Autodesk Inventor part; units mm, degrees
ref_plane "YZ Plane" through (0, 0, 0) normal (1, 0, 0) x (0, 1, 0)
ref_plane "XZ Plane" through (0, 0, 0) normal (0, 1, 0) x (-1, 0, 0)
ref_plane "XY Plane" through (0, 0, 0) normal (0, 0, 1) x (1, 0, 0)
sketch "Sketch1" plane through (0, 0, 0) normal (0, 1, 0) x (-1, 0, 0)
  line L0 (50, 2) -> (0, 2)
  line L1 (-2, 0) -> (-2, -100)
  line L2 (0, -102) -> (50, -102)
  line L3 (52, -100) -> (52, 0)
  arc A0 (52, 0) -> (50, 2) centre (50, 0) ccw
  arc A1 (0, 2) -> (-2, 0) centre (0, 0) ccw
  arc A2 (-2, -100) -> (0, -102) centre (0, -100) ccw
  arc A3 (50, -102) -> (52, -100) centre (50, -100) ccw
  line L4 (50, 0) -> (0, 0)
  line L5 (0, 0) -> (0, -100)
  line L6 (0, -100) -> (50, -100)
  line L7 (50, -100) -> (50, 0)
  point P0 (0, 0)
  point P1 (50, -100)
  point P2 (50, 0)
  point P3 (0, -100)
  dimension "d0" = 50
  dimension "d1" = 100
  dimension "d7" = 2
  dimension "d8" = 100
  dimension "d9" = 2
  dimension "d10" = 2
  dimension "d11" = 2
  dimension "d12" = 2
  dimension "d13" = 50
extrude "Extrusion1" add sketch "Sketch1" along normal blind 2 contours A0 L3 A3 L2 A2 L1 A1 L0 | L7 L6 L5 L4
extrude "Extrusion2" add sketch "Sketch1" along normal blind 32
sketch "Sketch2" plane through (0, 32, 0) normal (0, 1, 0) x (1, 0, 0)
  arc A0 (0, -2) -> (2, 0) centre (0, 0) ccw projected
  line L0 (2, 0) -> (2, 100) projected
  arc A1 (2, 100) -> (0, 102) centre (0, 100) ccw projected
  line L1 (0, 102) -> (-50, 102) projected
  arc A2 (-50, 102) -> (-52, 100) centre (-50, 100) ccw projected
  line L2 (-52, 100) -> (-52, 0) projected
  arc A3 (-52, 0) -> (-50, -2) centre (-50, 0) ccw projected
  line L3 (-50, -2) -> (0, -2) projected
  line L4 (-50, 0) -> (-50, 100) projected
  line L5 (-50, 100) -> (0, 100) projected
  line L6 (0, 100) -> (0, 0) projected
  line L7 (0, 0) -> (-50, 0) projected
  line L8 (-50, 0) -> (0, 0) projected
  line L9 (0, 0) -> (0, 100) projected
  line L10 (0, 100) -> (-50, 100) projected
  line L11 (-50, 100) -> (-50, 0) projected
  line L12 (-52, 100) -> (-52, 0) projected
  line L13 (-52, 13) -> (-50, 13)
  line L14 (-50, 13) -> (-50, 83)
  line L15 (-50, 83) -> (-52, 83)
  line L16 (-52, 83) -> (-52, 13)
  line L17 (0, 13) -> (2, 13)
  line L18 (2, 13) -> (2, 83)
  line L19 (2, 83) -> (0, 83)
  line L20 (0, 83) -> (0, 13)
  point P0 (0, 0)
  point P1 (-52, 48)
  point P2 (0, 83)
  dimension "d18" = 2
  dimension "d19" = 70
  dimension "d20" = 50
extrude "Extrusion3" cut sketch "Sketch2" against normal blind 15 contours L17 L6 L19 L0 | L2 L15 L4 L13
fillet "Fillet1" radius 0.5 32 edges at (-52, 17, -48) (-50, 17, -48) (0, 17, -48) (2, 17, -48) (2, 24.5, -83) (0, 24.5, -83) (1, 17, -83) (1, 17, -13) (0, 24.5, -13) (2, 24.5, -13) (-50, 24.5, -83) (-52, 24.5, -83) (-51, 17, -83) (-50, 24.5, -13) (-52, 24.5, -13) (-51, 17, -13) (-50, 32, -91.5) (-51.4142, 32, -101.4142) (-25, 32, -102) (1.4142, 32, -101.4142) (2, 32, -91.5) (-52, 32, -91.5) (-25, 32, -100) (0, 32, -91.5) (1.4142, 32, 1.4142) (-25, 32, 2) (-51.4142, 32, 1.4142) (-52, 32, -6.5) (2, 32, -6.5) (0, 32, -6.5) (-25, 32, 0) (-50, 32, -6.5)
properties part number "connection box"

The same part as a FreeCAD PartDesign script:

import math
import FreeCAD as App
import Part
import Sketcher

V = App.Vector
Q = App.Units.Quantity


def edges_at(feature, points):
    """Names of the edges that pass closest to the given points."""
    edges = feature.Shape.Edges
    near = lambda p: min(range(len(edges)), key=lambda i: edges[i].distToShape(Part.Vertex(*p))[0])
    return sorted({f"Edge{near(p) + 1}" for p in points})

doc = App.newDocument("Part")
body = doc.addObject("PartDesign::Body", "Body")

sketch1 = body.newObject("Sketcher::SketchObject", "Sketch")
sketch1.AttachmentSupport = (doc.getObject("XZ_Plane"), [""])
sketch1.MapMode = "FlatFace"
sketch1.addGeometry([
    Part.ArcOfCircle(Part.Circle(V(-50, 0, 0), V(0, 0, 1), 2), math.radians(90), math.radians(180)),
    Part.LineSegment(V(-50, 2, 0), V(0, 2, 0)),
    Part.ArcOfCircle(Part.Circle(V(0, 0, 0), V(0, 0, 1), 2), math.radians(0), math.radians(90)),
    Part.LineSegment(V(2, 0, 0), V(2, -100, 0)),
    Part.ArcOfCircle(Part.Circle(V(0, -100, 0), V(0, 0, 1), 2), math.radians(-90), math.radians(0)),
    Part.LineSegment(V(0, -102, 0), V(-50, -102, 0)),
    Part.ArcOfCircle(Part.Circle(V(-50, -100, 0), V(0, 0, 1), 2), math.radians(180), math.radians(270)),
    Part.LineSegment(V(-52, -100, 0), V(-52, 0, 0)),
], False)
sketch1.addConstraint([
    Sketcher.Constraint("Tangent", 0, 1, 1, 1),
    Sketcher.Constraint("Tangent", 1, 2, 2, 2),
    Sketcher.Constraint("Tangent", 2, 1, 3, 1),
    Sketcher.Constraint("Tangent", 3, 2, 4, 2),
    Sketcher.Constraint("Tangent", 4, 1, 5, 1),
    Sketcher.Constraint("Tangent", 5, 2, 6, 2),
    Sketcher.Constraint("Tangent", 6, 1, 7, 1),
    Sketcher.Constraint("Tangent", 7, 2, 0, 2),
    Sketcher.Constraint("Horizontal", 1),
    Sketcher.Constraint("Vertical", 3),
    Sketcher.Constraint("Horizontal", 5),
    Sketcher.Constraint("Vertical", 7),
    Sketcher.Constraint("Coincident", 2, 3, -1, 1),
    Sketcher.Constraint("Equal", 0, 2),
    Sketcher.Constraint("Equal", 2, 4),
    Sketcher.Constraint("Equal", 4, 6),
    Sketcher.Constraint("Radius", 0, Q("2 mm")),
    Sketcher.Constraint("DistanceX", 1, 1, 1, 2, Q("50 mm")),
    Sketcher.Constraint("DistanceY", 3, 2, 3, 1, Q("100 mm")),
])
pad1 = body.newObject("PartDesign::Pad", "Pad")
pad1.Profile = sketch1
pad1.Length = 2
pad1.Reversed = True

sketch2 = body.newObject("Sketcher::SketchObject", "Sketch001")
sketch2.AttachmentSupport = (doc.getObject("XZ_Plane"), [""])
sketch2.MapMode = "FlatFace"
sketch2.addGeometry([
    Part.ArcOfCircle(Part.Circle(V(-50, 0, 0), V(0, 0, 1), 2), math.radians(90), math.radians(180)),
    Part.LineSegment(V(-50, 2, 0), V(0, 2, 0)),
    Part.ArcOfCircle(Part.Circle(V(0, 0, 0), V(0, 0, 1), 2), math.radians(0), math.radians(90)),
    Part.LineSegment(V(2, 0, 0), V(2, -100, 0)),
    Part.ArcOfCircle(Part.Circle(V(0, -100, 0), V(0, 0, 1), 2), math.radians(-90), math.radians(0)),
    Part.LineSegment(V(0, -102, 0), V(-50, -102, 0)),
    Part.ArcOfCircle(Part.Circle(V(-50, -100, 0), V(0, 0, 1), 2), math.radians(180), math.radians(270)),
    Part.LineSegment(V(-52, -100, 0), V(-52, 0, 0)),
    Part.LineSegment(V(0, 0, 0), V(-50, 0, 0)),
    Part.LineSegment(V(-50, 0, 0), V(-50, -100, 0)),
    Part.LineSegment(V(-50, -100, 0), V(0, -100, 0)),
    Part.LineSegment(V(0, -100, 0), V(0, 0, 0)),
], False)
sketch2.addConstraint([
    Sketcher.Constraint("Tangent", 0, 1, 1, 1),
    Sketcher.Constraint("Tangent", 1, 2, 2, 2),
    Sketcher.Constraint("Tangent", 2, 1, 3, 1),
    Sketcher.Constraint("Tangent", 3, 2, 4, 2),
    Sketcher.Constraint("Tangent", 4, 1, 5, 1),
    Sketcher.Constraint("Tangent", 5, 2, 6, 2),
    Sketcher.Constraint("Tangent", 6, 1, 7, 1),
    Sketcher.Constraint("Tangent", 7, 2, 0, 2),
    Sketcher.Constraint("Coincident", 8, 2, 9, 1),
    Sketcher.Constraint("Coincident", 9, 2, 10, 1),
    Sketcher.Constraint("Coincident", 10, 2, 11, 1),
    Sketcher.Constraint("Coincident", 11, 2, 8, 1),
    Sketcher.Constraint("Horizontal", 1),
    Sketcher.Constraint("Vertical", 3),
    Sketcher.Constraint("Horizontal", 5),
    Sketcher.Constraint("Vertical", 7),
    Sketcher.Constraint("Horizontal", 8),
    Sketcher.Constraint("Vertical", 9),
    Sketcher.Constraint("Horizontal", 10),
    Sketcher.Constraint("Vertical", 11),
    Sketcher.Constraint("Coincident", 2, 3, -1, 1),
    Sketcher.Constraint("Coincident", 11, 2, -1, 1),
    Sketcher.Constraint("Coincident", 8, 2, 0, 3),
    Sketcher.Constraint("Coincident", 9, 2, 6, 3),
    Sketcher.Constraint("Equal", 2, 4),
    Sketcher.Constraint("Radius", 0, Q("2 mm")),
    Sketcher.Constraint("DistanceX", 1, 1, 1, 2, Q("50 mm")),
    Sketcher.Constraint("DistanceY", 3, 2, 3, 1, Q("100 mm")),
])
pad2 = body.newObject("PartDesign::Pad", "Pad001")
pad2.Profile = sketch2
pad2.Length = 32
pad2.Reversed = True

sketch3 = body.newObject("Sketcher::SketchObject", "Sketch002")
sketch3.AttachmentSupport = (doc.getObject("XZ_Plane"), [""])
sketch3.MapMode = "FlatFace"
sketch3.AttachmentOffset = App.Placement(V(0, 0, -32), App.Rotation())
sketch3.addGeometry([
    Part.LineSegment(V(0, -13, 0), V(2, -13, 0)),
    Part.LineSegment(V(2, -13, 0), V(2, -83, 0)),
    Part.LineSegment(V(2, -83, 0), V(0, -83, 0)),
    Part.LineSegment(V(0, -83, 0), V(0, -13, 0)),
    Part.LineSegment(V(-52, -83, 0), V(-52, -13, 0)),
    Part.LineSegment(V(-52, -13, 0), V(-50, -13, 0)),
    Part.LineSegment(V(-50, -13, 0), V(-50, -83, 0)),
    Part.LineSegment(V(-50, -83, 0), V(-52, -83, 0)),
], False)
sketch3.addConstraint([
    Sketcher.Constraint("Coincident", 0, 2, 1, 1),
    Sketcher.Constraint("Coincident", 1, 2, 2, 1),
    Sketcher.Constraint("Coincident", 2, 2, 3, 1),
    Sketcher.Constraint("Coincident", 3, 2, 0, 1),
    Sketcher.Constraint("Coincident", 4, 2, 5, 1),
    Sketcher.Constraint("Coincident", 5, 2, 6, 1),
    Sketcher.Constraint("Coincident", 6, 2, 7, 1),
    Sketcher.Constraint("Coincident", 7, 2, 4, 1),
    Sketcher.Constraint("Horizontal", 0),
    Sketcher.Constraint("Vertical", 1),
    Sketcher.Constraint("Horizontal", 2),
    Sketcher.Constraint("Vertical", 3),
    Sketcher.Constraint("Vertical", 4),
    Sketcher.Constraint("Horizontal", 5),
    Sketcher.Constraint("Vertical", 6),
    Sketcher.Constraint("Horizontal", 7),
    Sketcher.Constraint("PointOnObject", 2, 2, -2),
    Sketcher.Constraint("Horizontal", 3, 2, 4, 2),
    Sketcher.Constraint("Horizontal", 2, 2, 6, 2),
    Sketcher.Constraint("Equal", 2, 5),
    Sketcher.Constraint("DistanceX", 0, 1, 0, 2, Q("2 mm")),
    Sketcher.Constraint("DistanceY", 1, 2, 1, 1, Q("70 mm")),
    Sketcher.Constraint("DistanceX", 5, 2, -1, 1, Q("50 mm")),
    Sketcher.Constraint("DistanceY", 0, 2, -1, 1, Q("13 mm")),
])
pocket1 = body.newObject("PartDesign::Pocket", "Pocket")
pocket1.Profile = sketch3
pocket1.Length = 15
pocket1.Reversed = True
doc.recompute()

fillet = body.newObject("PartDesign::Fillet", "Fillet")
fillet.Base = (pocket1, edges_at(pocket1, [
    (-52, 17, -48),
    (-50, 17, -48),
    (0, 17, -48),
    (2, 17, -48),
    (2, 24.5, -83),
    (0, 24.5, -83),
    (1, 17, -83),
    (1, 17, -13),
    (0, 24.5, -13),
    (2, 24.5, -13),
    (-50, 24.5, -83),
    (-52, 24.5, -83),
    (-51, 17, -83),
    (-50, 24.5, -13),
    (-52, 24.5, -13),
    (-51, 17, -13),
    (-50, 32, -91.5),
    (-51.414, 32, -101.414),
    (-25, 32, -102),
    (1.414, 32, -101.414),
    (2, 32, -91.5),
    (-52, 32, -91.5),
    (-25, 32, -100),
    (0, 32, -91.5),
    (1.414, 32, 1.414),
    (-25, 32, 2),
    (-51.414, 32, 1.414),
    (-52, 32, -6.5),
    (2, 32, -6.5),
    (0, 32, -6.5),
    (-25, 32, 0),
    (-50, 32, -6.5),
]))
fillet.Radius = 0.5

doc.recompute()
